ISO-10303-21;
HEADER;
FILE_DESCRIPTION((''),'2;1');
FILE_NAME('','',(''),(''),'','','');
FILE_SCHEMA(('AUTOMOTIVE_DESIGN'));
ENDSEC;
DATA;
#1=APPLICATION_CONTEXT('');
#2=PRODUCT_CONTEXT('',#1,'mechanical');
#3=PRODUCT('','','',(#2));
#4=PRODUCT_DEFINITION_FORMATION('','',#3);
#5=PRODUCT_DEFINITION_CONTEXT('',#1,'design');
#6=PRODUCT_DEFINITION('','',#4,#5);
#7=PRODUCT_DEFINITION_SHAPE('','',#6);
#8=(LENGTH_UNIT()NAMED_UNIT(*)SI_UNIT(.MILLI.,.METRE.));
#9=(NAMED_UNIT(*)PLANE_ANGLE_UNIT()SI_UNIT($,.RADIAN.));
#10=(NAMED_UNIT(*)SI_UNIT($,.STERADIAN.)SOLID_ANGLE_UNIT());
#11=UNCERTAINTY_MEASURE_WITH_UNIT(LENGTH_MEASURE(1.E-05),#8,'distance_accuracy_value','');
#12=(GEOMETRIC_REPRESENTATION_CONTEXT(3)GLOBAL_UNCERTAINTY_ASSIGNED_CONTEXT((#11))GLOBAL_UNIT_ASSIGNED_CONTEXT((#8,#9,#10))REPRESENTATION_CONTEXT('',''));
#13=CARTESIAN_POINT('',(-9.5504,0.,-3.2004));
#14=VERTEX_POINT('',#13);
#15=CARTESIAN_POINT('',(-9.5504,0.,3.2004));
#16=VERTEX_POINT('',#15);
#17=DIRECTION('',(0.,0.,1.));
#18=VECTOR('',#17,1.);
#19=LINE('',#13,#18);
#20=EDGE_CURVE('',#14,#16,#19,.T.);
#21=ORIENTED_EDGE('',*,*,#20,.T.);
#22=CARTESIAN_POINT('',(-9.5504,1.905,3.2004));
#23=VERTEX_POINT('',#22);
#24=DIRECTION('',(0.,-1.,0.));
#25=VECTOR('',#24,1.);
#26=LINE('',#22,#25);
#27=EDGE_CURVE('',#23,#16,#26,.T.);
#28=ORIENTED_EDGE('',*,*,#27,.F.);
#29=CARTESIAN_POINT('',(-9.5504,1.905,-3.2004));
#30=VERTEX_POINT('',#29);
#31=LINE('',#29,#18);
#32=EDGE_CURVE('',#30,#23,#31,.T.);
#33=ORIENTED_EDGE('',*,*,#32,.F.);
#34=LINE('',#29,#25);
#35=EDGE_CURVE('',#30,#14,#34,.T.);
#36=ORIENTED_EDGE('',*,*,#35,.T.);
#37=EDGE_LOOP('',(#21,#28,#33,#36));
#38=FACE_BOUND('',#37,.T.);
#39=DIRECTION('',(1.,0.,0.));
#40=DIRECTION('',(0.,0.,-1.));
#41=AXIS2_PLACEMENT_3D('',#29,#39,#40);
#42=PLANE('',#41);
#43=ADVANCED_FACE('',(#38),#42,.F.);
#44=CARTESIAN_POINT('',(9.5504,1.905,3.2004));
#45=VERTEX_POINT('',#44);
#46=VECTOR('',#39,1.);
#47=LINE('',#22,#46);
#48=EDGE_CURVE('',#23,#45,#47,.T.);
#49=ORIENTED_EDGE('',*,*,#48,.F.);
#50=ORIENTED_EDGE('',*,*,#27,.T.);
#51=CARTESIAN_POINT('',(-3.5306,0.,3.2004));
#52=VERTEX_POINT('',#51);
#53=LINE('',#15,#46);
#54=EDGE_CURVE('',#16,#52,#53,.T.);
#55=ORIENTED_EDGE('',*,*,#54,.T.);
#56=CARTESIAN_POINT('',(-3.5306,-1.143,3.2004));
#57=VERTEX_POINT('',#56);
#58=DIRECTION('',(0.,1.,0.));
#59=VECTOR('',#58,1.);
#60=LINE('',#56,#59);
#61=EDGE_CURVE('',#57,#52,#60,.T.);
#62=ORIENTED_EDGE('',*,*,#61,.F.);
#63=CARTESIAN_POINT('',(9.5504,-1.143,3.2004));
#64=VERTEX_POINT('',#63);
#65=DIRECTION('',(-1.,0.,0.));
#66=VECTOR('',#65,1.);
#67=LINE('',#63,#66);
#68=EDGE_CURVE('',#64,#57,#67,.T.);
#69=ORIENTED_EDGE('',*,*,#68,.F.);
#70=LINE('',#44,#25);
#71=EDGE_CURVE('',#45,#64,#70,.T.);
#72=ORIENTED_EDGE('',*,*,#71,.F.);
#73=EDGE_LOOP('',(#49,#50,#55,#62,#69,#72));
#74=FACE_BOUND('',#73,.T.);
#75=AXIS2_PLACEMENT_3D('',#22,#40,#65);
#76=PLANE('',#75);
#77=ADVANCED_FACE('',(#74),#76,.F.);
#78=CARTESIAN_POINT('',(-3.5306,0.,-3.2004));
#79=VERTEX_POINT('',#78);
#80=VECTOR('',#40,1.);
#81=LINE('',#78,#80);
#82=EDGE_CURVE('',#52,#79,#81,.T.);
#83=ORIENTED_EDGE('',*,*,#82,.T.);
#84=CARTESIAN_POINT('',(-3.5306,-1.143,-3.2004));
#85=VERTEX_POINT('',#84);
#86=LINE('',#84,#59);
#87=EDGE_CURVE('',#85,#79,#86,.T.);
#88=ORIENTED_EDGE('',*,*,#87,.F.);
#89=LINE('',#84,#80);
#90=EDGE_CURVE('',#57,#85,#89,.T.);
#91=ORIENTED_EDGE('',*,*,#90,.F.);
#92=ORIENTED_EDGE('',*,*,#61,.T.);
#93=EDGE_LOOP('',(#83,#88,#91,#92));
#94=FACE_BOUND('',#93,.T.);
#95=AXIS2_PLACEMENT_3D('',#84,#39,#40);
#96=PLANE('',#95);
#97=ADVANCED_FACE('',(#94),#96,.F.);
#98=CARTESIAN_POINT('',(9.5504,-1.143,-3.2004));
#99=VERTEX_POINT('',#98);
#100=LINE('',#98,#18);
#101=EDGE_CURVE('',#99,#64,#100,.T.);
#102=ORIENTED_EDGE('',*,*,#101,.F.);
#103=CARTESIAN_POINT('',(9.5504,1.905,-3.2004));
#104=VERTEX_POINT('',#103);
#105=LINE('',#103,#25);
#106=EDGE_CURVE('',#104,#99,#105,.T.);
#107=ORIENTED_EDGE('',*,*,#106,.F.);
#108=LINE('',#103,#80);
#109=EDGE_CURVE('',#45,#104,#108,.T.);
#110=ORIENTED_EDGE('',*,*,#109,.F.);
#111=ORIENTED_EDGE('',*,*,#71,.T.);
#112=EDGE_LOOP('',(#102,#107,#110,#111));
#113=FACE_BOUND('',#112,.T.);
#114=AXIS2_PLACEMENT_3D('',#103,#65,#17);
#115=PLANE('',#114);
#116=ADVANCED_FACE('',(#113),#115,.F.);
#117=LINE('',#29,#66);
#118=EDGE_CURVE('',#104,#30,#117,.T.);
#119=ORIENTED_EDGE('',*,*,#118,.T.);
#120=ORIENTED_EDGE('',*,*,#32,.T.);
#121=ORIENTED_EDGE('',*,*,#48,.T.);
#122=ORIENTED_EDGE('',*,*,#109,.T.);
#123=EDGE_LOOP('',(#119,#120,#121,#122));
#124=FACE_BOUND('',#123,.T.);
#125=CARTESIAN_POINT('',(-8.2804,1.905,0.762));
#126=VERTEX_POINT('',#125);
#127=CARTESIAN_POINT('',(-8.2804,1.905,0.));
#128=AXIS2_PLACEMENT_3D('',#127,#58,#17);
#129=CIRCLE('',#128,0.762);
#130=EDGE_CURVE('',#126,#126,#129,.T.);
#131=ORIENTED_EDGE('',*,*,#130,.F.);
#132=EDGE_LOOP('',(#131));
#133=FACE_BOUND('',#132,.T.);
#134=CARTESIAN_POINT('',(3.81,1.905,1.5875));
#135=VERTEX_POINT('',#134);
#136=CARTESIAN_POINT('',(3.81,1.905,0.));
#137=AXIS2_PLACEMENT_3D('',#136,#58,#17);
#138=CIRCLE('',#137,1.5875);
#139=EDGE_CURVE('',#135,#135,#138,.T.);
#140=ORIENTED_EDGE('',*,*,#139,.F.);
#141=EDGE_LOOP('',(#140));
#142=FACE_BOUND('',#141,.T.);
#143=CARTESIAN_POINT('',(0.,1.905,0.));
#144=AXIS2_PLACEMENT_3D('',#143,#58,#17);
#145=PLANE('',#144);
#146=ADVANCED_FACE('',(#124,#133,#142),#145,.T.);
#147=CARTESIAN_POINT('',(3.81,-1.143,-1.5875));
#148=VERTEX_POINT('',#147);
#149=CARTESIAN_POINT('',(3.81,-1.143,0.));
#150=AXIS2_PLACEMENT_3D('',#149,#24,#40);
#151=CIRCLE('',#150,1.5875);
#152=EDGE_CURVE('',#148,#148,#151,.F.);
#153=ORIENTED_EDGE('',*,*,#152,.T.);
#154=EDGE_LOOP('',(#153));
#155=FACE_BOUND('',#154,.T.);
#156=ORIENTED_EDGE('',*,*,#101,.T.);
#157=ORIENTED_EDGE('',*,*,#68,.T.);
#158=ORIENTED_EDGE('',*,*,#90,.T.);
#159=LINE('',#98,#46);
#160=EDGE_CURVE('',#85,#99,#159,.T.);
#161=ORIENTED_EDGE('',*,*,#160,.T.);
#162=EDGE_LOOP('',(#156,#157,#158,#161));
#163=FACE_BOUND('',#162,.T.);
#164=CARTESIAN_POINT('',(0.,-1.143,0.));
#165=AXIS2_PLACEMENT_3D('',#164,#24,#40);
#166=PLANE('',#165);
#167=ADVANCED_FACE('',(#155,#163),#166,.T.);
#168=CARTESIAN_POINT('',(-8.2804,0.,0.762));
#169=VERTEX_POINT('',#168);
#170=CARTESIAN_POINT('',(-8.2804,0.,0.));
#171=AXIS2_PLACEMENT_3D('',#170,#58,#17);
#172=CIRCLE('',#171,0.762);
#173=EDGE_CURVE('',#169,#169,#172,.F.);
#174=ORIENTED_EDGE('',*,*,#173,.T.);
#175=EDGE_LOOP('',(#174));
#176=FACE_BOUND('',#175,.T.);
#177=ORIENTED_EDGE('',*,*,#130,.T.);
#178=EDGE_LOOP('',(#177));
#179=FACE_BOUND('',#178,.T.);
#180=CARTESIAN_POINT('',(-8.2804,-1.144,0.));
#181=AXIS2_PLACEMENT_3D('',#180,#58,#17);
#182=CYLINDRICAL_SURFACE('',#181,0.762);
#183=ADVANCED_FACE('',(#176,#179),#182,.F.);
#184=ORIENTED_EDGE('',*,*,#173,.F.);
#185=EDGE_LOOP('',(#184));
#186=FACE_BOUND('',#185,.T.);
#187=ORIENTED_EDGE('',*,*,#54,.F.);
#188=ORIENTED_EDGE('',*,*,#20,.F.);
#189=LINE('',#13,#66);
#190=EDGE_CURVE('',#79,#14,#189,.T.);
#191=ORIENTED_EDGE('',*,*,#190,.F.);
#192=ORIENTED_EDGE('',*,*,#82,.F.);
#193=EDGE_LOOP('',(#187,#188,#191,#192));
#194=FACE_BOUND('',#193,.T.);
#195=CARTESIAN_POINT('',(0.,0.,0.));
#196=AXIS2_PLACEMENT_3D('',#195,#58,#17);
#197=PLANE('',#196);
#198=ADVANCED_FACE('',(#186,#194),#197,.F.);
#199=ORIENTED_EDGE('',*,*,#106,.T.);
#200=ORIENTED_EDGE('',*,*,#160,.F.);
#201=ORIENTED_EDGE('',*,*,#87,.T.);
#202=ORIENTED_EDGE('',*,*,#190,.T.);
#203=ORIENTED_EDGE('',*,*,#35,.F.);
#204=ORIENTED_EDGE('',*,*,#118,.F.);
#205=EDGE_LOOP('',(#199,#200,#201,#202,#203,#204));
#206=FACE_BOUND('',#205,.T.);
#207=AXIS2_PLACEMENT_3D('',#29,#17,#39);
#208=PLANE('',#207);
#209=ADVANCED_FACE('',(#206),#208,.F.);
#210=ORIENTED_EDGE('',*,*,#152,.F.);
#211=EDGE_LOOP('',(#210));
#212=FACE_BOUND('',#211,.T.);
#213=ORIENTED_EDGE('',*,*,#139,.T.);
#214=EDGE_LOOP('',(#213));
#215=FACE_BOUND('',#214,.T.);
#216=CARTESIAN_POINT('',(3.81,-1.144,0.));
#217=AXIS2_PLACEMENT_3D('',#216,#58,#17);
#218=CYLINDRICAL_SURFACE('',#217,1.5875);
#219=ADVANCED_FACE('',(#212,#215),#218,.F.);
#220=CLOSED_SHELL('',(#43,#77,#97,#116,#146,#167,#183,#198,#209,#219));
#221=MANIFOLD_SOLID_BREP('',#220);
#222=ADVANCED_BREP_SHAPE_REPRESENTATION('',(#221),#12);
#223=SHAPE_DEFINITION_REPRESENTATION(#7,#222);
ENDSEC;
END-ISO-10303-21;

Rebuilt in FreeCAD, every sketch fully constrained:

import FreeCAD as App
import Part
import Sketcher

V = App.Vector
Q = App.Units.Quantity

doc = App.newDocument("Part")
params = doc.addObject("Spreadsheet::Sheet", "Params")
for row, (alias, value) in enumerate([
    ("sketch1_width", "0.752 in"),
    ("sketch1_height", "0.252 in"),
    ("pad1_length", "0.075 in"),
    ("sketch2_width", "0.515 in"),
    ("sketch2_height", "0.252 in"),
    ("pad2_length", "0.045 in"),
    ("sketch3_diameter", "0.06 in"),
    ("sketch4_diameter", "0.125 in"),
], start=1):
    params.set(f"A{row}", alias)
    params.set(f"B{row}", "=" + value)
    params.setAlias(f"B{row}", alias)

body = doc.addObject("PartDesign::Body", "Body")

# Sketch on XZ plane
sketch1 = doc.addObject("Sketcher::SketchObject", "Sketch")
body.addObject(sketch1)
sketch1.AttachmentSupport = (doc.XZ_Plane, [""])
sketch1.MapMode = "FlatFace"
sketch1.addGeometry(Part.LineSegment(V(-10, -3, 0), V(-10, 3, 0)), False)
sketch1.addGeometry(Part.LineSegment(V(-10, 3, 0), V(10, 3, 0)), False)
sketch1.addGeometry(Part.LineSegment(V(10, 3, 0), V(10, -3, 0)), False)
sketch1.addGeometry(Part.LineSegment(V(10, -3, 0), V(-10, -3, 0)), False)
sketch1.addConstraint(Sketcher.Constraint("Coincident", 0, 2, 1, 1))
sketch1.addConstraint(Sketcher.Constraint("Coincident", 1, 2, 2, 1))
sketch1.addConstraint(Sketcher.Constraint("Coincident", 2, 2, 3, 1))
sketch1.addConstraint(Sketcher.Constraint("Coincident", 3, 2, 0, 1))
sketch1.addConstraint(Sketcher.Constraint("Vertical", 0))
sketch1.addConstraint(Sketcher.Constraint("Horizontal", 1))
sketch1.addConstraint(Sketcher.Constraint("Vertical", 2))
sketch1.addConstraint(Sketcher.Constraint("Horizontal", 3))
sketch1.addConstraint(Sketcher.Constraint("Symmetric", 0, 2, 2, 2, -1, 1))
sketch1.addConstraint(Sketcher.Constraint("DistanceX", 1, 1, 1, 2, Q("0.752 in")))
sketch1.addConstraint(Sketcher.Constraint("DistanceY", 0, 1, 0, 2, Q("0.252 in")))
sketch1.setExpression("Constraints[9]", "Params.sketch1_width")
sketch1.setExpression("Constraints[10]", "Params.sketch1_height")
pad1 = doc.addObject("PartDesign::Pad", "Pad")
body.addObject(pad1)
pad1.Profile = sketch1
pad1.setExpression("Length", "Params.pad1_length")
pad1.Reversed = True

# Sketch on XZ plane
sketch2 = doc.addObject("Sketcher::SketchObject", "Sketch001")
body.addObject(sketch2)
sketch2.AttachmentSupport = (doc.XZ_Plane, [""])
sketch2.MapMode = "FlatFace"
sketch2.addGeometry(Part.LineSegment(V(10, -3, 0), V(10, 3, 0)), False)
sketch2.addGeometry(Part.LineSegment(V(10, 3, 0), V(-4, 3, 0)), False)
sketch2.addGeometry(Part.LineSegment(V(-4, 3, 0), V(-4, -3, 0)), False)
sketch2.addGeometry(Part.LineSegment(V(-4, -3, 0), V(10, -3, 0)), False)
sketch2.addConstraint(Sketcher.Constraint("Coincident", 0, 2, 1, 1))
sketch2.addConstraint(Sketcher.Constraint("Coincident", 1, 2, 2, 1))
sketch2.addConstraint(Sketcher.Constraint("Coincident", 2, 2, 3, 1))
sketch2.addConstraint(Sketcher.Constraint("Coincident", 3, 2, 0, 1))
sketch2.addConstraint(Sketcher.Constraint("Vertical", 0))
sketch2.addConstraint(Sketcher.Constraint("Horizontal", 1))
sketch2.addConstraint(Sketcher.Constraint("Vertical", 2))
sketch2.addConstraint(Sketcher.Constraint("Horizontal", 3))
sketch2.addConstraint(Sketcher.Constraint("DistanceX", 1, 2, 1, 1, Q("0.515 in")))
sketch2.addConstraint(Sketcher.Constraint("DistanceY", 0, 1, 0, 2, Q("0.252 in")))
sketch2.addConstraint(Sketcher.Constraint("DistanceX", -1, 1, 0, 2, Q("0.376 in")))
sketch2.addConstraint(Sketcher.Constraint("DistanceY", -1, 1, 0, 2, Q("0.126 in")))
sketch2.setExpression("Constraints[8]", "Params.sketch2_width")
sketch2.setExpression("Constraints[9]", "Params.sketch2_height")
pad2 = doc.addObject("PartDesign::Pad", "Pad001")
body.addObject(pad2)
pad2.Profile = sketch2
pad2.setExpression("Length", "Params.pad2_length")

# Sketch on XZ plane
sketch3 = doc.addObject("Sketcher::SketchObject", "Sketch002")
body.addObject(sketch3)
sketch3.AttachmentSupport = (doc.XZ_Plane, [""])
sketch3.MapMode = "FlatFace"
sketch3.AttachmentOffset = App.Placement(V(0, 0, -0.075 * 25.4), App.Rotation())
sketch3.addGeometry(Part.Circle(V(-8.3, 0, 0), V(0, 0, 1), 0.8), False)
sketch3.addConstraint(Sketcher.Constraint("PointOnObject", 0, 3, -1))
sketch3.addConstraint(Sketcher.Constraint("Diameter", 0, Q("0.06 in")))
sketch3.addConstraint(Sketcher.Constraint("DistanceX", 0, 3, -1, 1, Q("0.326 in")))
sketch3.setExpression("Constraints[1]", "Params.sketch3_diameter")
pocket1 = doc.addObject("PartDesign::Pocket", "Pocket")
body.addObject(pocket1)
pocket1.Profile = sketch3
pocket1.Type = "UpToFirst"
pocket1.Reversed = True

# Sketch on XZ plane
sketch4 = doc.addObject("Sketcher::SketchObject", "Sketch003")
body.addObject(sketch4)
sketch4.AttachmentSupport = (doc.XZ_Plane, [""])
sketch4.MapMode = "FlatFace"
sketch4.AttachmentOffset = App.Placement(V(0, 0, -0.075 * 25.4), App.Rotation())
sketch4.addGeometry(Part.Circle(V(3.8, 0, 0), V(0, 0, 1), 1.6), False)
sketch4.addConstraint(Sketcher.Constraint("PointOnObject", 0, 3, -1))
sketch4.addConstraint(Sketcher.Constraint("Diameter", 0, Q("0.125 in")))
sketch4.addConstraint(Sketcher.Constraint("DistanceX", -1, 1, 0, 3, Q("0.15 in")))
sketch4.setExpression("Constraints[1]", "Params.sketch4_diameter")
pocket2 = doc.addObject("PartDesign::Pocket", "Pocket001")
body.addObject(pocket2)
pocket2.Profile = sketch4
pocket2.Type = "UpToFirst"
pocket2.Reversed = True

doc.recompute()
